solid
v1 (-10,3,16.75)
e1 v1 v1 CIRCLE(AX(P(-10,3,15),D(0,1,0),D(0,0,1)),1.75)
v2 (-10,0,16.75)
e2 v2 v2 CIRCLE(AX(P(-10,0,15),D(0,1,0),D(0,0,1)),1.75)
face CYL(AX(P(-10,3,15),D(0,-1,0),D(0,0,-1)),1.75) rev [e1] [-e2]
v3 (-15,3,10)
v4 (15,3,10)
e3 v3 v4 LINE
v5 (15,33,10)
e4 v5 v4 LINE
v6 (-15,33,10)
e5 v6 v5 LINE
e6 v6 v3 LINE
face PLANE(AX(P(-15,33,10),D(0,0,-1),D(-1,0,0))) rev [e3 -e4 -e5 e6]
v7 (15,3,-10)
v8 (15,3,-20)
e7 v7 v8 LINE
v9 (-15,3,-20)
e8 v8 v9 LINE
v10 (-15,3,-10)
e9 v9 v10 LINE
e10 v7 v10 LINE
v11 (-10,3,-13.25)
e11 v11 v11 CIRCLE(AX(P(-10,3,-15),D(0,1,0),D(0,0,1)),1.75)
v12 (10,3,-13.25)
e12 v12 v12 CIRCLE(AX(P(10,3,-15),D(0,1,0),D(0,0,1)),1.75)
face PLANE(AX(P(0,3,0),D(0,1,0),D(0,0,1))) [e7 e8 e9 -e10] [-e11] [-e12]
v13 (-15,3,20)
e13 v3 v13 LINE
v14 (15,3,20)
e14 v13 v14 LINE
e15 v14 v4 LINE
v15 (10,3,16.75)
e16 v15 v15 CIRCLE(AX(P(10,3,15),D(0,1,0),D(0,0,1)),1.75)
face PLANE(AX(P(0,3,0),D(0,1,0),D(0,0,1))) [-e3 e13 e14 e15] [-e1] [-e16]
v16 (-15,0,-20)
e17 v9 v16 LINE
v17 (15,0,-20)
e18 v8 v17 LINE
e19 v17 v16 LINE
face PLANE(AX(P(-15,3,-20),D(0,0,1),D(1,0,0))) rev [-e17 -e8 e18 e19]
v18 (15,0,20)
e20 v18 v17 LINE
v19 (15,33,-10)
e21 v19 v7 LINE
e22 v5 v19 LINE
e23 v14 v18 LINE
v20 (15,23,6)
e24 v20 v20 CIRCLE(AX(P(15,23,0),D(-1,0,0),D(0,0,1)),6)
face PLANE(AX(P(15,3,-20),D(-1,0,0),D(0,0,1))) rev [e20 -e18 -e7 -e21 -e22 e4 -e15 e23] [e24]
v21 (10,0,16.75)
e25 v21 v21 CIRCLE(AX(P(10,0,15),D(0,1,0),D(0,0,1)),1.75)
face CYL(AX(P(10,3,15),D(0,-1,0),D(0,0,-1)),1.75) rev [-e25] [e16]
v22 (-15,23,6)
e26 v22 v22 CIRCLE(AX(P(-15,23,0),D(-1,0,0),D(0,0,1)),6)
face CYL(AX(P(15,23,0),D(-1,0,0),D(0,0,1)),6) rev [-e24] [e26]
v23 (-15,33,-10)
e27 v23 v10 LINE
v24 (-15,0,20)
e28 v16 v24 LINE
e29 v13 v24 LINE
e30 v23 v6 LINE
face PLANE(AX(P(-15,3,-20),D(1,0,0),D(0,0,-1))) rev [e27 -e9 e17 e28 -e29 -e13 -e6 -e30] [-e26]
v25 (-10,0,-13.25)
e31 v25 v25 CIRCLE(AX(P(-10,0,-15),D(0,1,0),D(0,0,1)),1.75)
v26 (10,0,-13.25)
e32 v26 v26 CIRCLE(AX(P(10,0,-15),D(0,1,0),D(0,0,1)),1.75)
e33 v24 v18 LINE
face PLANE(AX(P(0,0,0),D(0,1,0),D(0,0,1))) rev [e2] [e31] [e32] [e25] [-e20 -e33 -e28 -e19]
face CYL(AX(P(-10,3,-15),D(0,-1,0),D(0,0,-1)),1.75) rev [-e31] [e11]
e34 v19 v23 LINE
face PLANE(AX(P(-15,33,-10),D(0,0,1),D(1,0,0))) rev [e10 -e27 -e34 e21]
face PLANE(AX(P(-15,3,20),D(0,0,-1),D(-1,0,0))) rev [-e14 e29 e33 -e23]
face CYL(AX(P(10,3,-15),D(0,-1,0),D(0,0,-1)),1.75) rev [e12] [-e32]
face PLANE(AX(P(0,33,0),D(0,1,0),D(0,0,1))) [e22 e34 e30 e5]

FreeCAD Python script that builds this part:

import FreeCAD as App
import Part
import Sketcher

doc = App.newDocument("Part")
body = doc.addObject("PartDesign::Body", "Body")

sketch1 = doc.addObject("Sketcher::SketchObject", "Sketch")
body.addObject(sketch1)
sketch1.AttachmentSupport = (doc.XZ_Plane, [""])
sketch1.MapMode = "FlatFace"
sketch1.addGeometry([
    Part.LineSegment(App.Vector(-15, -20, 0), App.Vector(-15, 20, 0)),
    Part.LineSegment(App.Vector(-15, 20, 0), App.Vector(15, 20, 0)),
    Part.LineSegment(App.Vector(15, 20, 0), App.Vector(15, -20, 0)),
    Part.LineSegment(App.Vector(15, -20, 0), App.Vector(-15, -20, 0)),
    Part.Circle(App.Vector(-10, 15, 0), App.Vector(0, 0, 1), 1.8),
    Part.Circle(App.Vector(10, 15, 0), App.Vector(0, 0, 1), 1.8),
    Part.Circle(App.Vector(-10, -15, 0), App.Vector(0, 0, 1), 1.8),
    Part.Circle(App.Vector(10, -15, 0), App.Vector(0, 0, 1), 1.8),
], False)
sketch1.addConstraint([
    Sketcher.Constraint("Coincident", 0, 2, 1, 1),
    Sketcher.Constraint("Coincident", 1, 2, 2, 1),
    Sketcher.Constraint("Coincident", 2, 2, 3, 1),
    Sketcher.Constraint("Coincident", 3, 2, 0, 1),
    Sketcher.Constraint("Vertical", 0),
    Sketcher.Constraint("Horizontal", 1),
    Sketcher.Constraint("Vertical", 2),
    Sketcher.Constraint("Horizontal", 3),
    Sketcher.Constraint("Equal", 4, 5),
    Sketcher.Constraint("Equal", 5, 6),
    Sketcher.Constraint("Equal", 6, 7),
    Sketcher.Constraint("Symmetric", 5, 3, 6, 3, -1, 1),
    Sketcher.Constraint("Symmetric", 4, 3, 7, 3, -1, 1),
    Sketcher.Constraint("Symmetric", 0, 2, 2, 2, -1, 1),
    Sketcher.Constraint("Symmetric", 4, 3, 5, 3, -2),
    Sketcher.Constraint("Diameter", 4, 3.5),
    Sketcher.Constraint("DistanceX", 1, 1, 1, 2, 30.0),
    Sketcher.Constraint("DistanceY", 0, 1, 0, 2, 40.0),
    Sketcher.Constraint("DistanceX", 4, 3, -1, 1, 10.0),
    Sketcher.Constraint("DistanceY", -1, 1, 4, 3, 15.0),
])
pad1 = doc.addObject("PartDesign::Pad", "Pad")
body.addObject(pad1)
pad1.Profile = sketch1
pad1.Length = 3
pad1.Reversed = True

sketch2 = doc.addObject("Sketcher::SketchObject", "Sketch001")
body.addObject(sketch2)
sketch2.AttachmentSupport = (doc.XZ_Plane, [""])
sketch2.MapMode = "FlatFace"
sketch2.AttachmentOffset = App.Placement(App.Vector(0, 0, -3), App.Rotation())
sketch2.addGeometry([
    Part.LineSegment(App.Vector(-15, -10, 0), App.Vector(-15, 10, 0)),
    Part.LineSegment(App.Vector(-15, 10, 0), App.Vector(15, 10, 0)),
    Part.LineSegment(App.Vector(15, 10, 0), App.Vector(15, -10, 0)),
    Part.LineSegment(App.Vector(15, -10, 0), App.Vector(-15, -10, 0)),
], False)
sketch2.addConstraint([
    Sketcher.Constraint("Coincident", 0, 2, 1, 1),
    Sketcher.Constraint("Coincident", 1, 2, 2, 1),
    Sketcher.Constraint("Coincident", 2, 2, 3, 1),
    Sketcher.Constraint("Coincident", 3, 2, 0, 1),
    Sketcher.Constraint("Vertical", 0),
    Sketcher.Constraint("Horizontal", 1),
    Sketcher.Constraint("Vertical", 2),
    Sketcher.Constraint("Horizontal", 3),
    Sketcher.Constraint("Symmetric", 0, 2, 2, 2, -1, 1),
    Sketcher.Constraint("DistanceX", 1, 1, 1, 2, 30.0),
    Sketcher.Constraint("DistanceY", 0, 1, 0, 2, 20.0),
])
pad2 = doc.addObject("PartDesign::Pad", "Pad001")
body.addObject(pad2)
pad2.Profile = sketch2
pad2.Length = 30
pad2.Reversed = True

sketch3 = doc.addObject("Sketcher::SketchObject", "Sketch002")
body.addObject(sketch3)
sketch3.AttachmentSupport = (doc.YZ_Plane, [""])
sketch3.MapMode = "FlatFace"
sketch3.AttachmentOffset = App.Placement(App.Vector(0, 0, -15), App.Rotation())
sketch3.addGeometry(Part.Circle(App.Vector(23, 0, 0), App.Vector(0, 0, 1), 6), False)
sketch3.addConstraint([
    Sketcher.Constraint("PointOnObject", 0, 3, -1),
    Sketcher.Constraint("Diameter", 0, 12.0),
    Sketcher.Constraint("DistanceX", -1, 1, 0, 3, 23.0),
])
pocket1 = doc.addObject("PartDesign::Pocket", "Pocket")
body.addObject(pocket1)
pocket1.Profile = sketch3
pocket1.Length = 30
pocket1.Reversed = True

doc.recompute()
